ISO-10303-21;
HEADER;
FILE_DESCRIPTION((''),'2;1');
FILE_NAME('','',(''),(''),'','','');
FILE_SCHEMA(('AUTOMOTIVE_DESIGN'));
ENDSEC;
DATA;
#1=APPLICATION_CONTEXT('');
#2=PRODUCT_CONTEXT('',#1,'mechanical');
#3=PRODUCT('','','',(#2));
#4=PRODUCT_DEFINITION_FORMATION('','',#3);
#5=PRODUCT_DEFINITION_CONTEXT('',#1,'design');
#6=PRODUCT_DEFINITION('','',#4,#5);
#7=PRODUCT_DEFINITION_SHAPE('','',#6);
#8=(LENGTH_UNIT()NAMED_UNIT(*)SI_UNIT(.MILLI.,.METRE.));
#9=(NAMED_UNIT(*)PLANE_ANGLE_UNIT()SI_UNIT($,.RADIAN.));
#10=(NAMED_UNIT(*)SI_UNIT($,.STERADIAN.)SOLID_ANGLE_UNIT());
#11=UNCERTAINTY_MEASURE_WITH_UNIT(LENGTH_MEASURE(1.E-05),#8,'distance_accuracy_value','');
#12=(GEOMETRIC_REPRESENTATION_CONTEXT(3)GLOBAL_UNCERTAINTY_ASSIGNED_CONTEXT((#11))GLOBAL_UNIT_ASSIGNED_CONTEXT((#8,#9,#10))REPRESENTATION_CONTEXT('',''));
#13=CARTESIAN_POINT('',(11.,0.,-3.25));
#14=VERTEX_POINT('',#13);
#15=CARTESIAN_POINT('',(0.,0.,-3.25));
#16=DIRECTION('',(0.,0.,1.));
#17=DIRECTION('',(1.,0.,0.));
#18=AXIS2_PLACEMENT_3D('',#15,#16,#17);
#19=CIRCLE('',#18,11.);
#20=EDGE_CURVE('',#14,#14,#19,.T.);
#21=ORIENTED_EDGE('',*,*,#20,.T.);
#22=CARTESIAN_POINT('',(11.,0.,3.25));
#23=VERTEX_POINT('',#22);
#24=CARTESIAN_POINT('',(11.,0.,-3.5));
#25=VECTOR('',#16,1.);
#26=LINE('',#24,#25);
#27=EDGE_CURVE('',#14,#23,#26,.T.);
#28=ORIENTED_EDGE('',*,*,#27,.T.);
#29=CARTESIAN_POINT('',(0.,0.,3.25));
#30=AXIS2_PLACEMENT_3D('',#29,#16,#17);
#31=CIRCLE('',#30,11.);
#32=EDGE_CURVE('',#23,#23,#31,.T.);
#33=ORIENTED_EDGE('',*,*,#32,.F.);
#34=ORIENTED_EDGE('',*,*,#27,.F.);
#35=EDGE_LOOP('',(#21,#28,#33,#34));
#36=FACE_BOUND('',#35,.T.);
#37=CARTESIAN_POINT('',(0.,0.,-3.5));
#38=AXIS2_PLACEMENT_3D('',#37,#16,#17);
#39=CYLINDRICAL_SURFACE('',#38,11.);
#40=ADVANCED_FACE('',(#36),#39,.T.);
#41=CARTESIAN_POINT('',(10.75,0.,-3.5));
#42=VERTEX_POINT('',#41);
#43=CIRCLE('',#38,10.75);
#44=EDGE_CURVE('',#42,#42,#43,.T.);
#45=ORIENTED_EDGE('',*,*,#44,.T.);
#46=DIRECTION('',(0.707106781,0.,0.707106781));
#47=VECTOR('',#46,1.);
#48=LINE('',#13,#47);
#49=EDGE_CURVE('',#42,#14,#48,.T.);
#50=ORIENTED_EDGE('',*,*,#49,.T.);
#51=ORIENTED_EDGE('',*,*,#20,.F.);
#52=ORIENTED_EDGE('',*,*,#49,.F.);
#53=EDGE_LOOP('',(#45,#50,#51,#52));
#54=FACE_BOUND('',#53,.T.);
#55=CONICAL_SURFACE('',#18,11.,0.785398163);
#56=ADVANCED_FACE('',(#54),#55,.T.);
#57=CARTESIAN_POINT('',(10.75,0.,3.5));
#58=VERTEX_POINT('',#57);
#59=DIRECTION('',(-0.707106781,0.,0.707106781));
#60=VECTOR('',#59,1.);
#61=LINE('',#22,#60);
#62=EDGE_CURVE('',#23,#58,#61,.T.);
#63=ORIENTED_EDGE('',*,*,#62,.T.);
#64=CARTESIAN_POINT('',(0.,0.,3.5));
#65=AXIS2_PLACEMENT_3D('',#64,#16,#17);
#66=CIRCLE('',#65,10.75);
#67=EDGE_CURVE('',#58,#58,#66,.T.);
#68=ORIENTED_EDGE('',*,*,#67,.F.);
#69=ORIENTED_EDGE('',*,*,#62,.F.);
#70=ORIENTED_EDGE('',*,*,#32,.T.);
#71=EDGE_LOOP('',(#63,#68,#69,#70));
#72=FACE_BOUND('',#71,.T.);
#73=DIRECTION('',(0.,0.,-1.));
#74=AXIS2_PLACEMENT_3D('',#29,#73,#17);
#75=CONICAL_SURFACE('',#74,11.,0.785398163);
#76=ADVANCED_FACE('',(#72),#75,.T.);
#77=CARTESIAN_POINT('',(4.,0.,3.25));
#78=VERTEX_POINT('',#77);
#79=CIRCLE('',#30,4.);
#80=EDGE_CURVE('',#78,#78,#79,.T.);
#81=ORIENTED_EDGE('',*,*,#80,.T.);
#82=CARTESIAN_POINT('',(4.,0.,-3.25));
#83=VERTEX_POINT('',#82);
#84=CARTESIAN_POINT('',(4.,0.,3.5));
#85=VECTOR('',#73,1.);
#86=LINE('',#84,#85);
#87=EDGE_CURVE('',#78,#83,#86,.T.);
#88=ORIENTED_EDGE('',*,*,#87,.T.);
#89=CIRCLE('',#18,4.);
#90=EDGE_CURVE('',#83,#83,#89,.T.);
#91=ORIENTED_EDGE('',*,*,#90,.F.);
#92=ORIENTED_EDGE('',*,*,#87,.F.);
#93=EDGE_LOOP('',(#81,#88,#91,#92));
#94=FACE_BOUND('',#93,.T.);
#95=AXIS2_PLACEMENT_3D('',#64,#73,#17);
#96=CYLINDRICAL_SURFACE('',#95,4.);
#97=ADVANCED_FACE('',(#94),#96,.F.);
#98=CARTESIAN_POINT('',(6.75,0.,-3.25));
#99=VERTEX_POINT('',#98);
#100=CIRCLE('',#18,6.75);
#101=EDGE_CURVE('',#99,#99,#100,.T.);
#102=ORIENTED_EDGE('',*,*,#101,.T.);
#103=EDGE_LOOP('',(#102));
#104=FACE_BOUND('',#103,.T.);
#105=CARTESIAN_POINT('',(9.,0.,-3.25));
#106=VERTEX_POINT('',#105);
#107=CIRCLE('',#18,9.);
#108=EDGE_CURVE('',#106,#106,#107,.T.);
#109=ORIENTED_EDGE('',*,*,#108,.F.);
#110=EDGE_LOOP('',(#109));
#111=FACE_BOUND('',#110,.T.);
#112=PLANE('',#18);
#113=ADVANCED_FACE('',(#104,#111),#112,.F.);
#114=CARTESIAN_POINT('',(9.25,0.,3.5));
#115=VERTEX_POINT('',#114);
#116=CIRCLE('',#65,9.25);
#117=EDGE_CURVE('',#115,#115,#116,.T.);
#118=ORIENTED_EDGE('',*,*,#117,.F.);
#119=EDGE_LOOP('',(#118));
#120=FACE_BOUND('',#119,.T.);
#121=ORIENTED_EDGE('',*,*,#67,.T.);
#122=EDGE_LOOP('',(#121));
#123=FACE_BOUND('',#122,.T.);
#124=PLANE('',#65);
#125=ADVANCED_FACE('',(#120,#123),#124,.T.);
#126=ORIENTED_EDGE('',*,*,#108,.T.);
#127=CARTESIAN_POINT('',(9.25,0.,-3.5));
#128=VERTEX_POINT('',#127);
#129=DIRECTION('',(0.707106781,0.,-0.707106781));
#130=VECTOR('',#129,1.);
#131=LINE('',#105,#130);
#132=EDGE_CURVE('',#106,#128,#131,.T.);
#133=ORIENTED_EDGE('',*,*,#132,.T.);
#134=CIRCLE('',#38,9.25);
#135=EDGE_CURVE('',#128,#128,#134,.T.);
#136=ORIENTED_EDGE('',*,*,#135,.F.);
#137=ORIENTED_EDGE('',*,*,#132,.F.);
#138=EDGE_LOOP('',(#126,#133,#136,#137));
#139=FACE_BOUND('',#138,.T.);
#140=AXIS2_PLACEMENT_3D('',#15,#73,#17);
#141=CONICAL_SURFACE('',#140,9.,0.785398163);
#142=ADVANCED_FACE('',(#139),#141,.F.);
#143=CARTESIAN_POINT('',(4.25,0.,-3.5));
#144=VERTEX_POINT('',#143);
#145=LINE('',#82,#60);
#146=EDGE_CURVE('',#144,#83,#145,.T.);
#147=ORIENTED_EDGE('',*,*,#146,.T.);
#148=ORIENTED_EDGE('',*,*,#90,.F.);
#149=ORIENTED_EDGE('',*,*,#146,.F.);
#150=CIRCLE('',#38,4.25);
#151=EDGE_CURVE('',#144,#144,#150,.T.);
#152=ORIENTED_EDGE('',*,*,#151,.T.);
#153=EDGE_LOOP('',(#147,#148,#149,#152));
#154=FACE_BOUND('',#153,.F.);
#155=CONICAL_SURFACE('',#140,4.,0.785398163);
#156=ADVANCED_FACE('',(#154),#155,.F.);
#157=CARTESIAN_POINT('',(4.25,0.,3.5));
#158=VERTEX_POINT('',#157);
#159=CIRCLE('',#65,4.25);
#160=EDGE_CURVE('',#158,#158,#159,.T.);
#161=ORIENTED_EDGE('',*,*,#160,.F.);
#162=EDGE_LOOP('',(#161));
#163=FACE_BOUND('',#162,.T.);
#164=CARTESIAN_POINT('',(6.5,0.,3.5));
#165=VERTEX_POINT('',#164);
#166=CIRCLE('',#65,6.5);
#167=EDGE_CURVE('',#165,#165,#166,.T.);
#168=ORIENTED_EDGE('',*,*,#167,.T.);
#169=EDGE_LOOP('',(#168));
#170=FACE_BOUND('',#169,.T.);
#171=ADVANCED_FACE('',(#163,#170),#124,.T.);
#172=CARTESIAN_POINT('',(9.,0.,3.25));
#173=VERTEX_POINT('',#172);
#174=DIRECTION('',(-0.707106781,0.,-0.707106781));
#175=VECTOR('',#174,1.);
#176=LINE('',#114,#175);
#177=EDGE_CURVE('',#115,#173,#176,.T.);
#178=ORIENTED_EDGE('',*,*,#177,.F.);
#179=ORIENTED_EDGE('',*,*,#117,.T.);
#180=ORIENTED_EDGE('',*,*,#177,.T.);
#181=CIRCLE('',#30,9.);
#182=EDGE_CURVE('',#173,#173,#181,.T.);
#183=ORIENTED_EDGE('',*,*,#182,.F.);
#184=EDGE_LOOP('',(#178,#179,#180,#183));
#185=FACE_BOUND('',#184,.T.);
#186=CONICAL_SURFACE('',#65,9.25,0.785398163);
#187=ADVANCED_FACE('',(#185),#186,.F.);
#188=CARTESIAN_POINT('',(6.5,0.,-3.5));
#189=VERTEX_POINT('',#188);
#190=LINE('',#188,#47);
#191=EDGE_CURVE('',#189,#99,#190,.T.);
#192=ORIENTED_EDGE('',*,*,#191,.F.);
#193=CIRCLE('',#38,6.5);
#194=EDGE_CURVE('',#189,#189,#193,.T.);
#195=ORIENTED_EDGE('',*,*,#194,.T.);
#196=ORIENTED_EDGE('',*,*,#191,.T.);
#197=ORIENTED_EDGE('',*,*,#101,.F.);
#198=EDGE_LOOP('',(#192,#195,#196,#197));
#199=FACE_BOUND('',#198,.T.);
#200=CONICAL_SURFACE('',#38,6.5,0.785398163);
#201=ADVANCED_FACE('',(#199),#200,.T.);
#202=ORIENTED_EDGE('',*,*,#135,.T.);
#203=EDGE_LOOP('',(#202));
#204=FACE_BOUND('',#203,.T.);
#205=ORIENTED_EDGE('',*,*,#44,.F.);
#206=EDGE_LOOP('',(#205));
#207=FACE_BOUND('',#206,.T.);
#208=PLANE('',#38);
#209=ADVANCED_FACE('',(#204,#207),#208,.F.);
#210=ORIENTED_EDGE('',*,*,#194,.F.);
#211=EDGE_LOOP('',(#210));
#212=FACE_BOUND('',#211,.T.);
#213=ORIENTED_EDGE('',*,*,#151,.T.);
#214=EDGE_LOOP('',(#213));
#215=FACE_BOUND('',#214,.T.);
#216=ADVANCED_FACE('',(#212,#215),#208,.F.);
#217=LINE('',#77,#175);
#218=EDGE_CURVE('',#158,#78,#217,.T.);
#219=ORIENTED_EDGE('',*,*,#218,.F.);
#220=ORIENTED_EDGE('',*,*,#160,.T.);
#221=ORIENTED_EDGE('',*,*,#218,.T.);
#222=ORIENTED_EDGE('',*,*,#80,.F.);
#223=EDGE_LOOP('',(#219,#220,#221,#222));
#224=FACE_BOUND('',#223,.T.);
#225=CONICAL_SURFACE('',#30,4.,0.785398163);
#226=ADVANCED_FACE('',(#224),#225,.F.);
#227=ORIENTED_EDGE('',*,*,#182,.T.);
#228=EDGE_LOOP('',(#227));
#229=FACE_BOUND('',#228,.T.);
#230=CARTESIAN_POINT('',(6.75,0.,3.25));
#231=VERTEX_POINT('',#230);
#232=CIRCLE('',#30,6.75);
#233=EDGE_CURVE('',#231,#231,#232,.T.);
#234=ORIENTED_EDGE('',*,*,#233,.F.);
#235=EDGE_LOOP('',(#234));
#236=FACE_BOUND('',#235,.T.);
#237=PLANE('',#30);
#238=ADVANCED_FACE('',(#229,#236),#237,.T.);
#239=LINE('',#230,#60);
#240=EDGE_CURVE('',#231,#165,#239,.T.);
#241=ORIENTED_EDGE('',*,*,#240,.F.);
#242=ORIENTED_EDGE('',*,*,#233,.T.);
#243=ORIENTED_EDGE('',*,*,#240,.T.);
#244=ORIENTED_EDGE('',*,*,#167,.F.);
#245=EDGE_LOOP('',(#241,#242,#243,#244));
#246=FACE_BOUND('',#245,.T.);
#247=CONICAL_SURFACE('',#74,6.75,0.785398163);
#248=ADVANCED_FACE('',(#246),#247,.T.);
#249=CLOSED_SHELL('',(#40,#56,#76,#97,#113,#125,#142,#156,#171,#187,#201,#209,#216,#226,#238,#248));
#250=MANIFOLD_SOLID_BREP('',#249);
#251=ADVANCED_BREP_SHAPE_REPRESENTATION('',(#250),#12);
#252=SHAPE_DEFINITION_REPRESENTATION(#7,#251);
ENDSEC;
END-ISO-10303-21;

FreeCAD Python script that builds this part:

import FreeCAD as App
import Part
import Sketcher

V = App.Vector


def edges_at(feature, points):
    """Names of the edges that pass closest to the given points."""
    edges = feature.Shape.Edges
    near = lambda p: min(range(len(edges)), key=lambda i: edges[i].distToShape(Part.Vertex(*p))[0])
    return sorted({f"Edge{near(p) + 1}" for p in points})

doc = App.newDocument("Part")
params = doc.addObject("Spreadsheet::Sheet", "Params")
for row, (alias, value) in enumerate([
    ("sketch1_height", "7 mm"),
    ("sketch1_width", "2.5 mm"),
    ("sketch1_width2", "2.25 mm"),
    ("revolution_angle", "360 deg"),
    ("chamfer_size", "0.25 mm"),
], start=1):
    params.set(f"A{row}", alias)
    params.set(f"B{row}", "=" + value)
    params.setAlias(f"B{row}", alias)

body = doc.addObject("PartDesign::Body", "Body")

sketch1 = body.newObject("Sketcher::SketchObject", "Sketch")
sketch1.AttachmentSupport = (doc.getObject("XZ_Plane"), [""])
sketch1.MapMode = "FlatFace"
sketch1.addGeometry(Part.LineSegment(V(4, -3.5, 0), V(6.5, -3.5, 0)), False)
sketch1.addGeometry(Part.LineSegment(V(6.5, -3.5, 0), V(6.75, -3.25, 0)), False)
sketch1.addGeometry(Part.LineSegment(V(6.75, -3.25, 0), V(9, -3.25, 0)), False)
sketch1.addGeometry(Part.LineSegment(V(9, -3.25, 0), V(9.25, -3.5, 0)), False)
sketch1.addGeometry(Part.LineSegment(V(9.25, -3.5, 0), V(11, -3.5, 0)), False)
sketch1.addGeometry(Part.LineSegment(V(11, -3.5, 0), V(11, 3.5, 0)), False)
sketch1.addGeometry(Part.LineSegment(V(11, 3.5, 0), V(9.25, 3.5, 0)), False)
sketch1.addGeometry(Part.LineSegment(V(9.25, 3.5, 0), V(9, 3.25, 0)), False)
sketch1.addGeometry(Part.LineSegment(V(9, 3.25, 0), V(6.75, 3.25, 0)), False)
sketch1.addGeometry(Part.LineSegment(V(6.75, 3.25, 0), V(6.5, 3.5, 0)), False)
sketch1.addGeometry(Part.LineSegment(V(6.5, 3.5, 0), V(4, 3.5, 0)), False)
sketch1.addGeometry(Part.LineSegment(V(4, 3.5, 0), V(4, -3.5, 0)), False)
sketch1.addConstraint(Sketcher.Constraint("Coincident", 0, 2, 1, 1))
sketch1.addConstraint(Sketcher.Constraint("Coincident", 1, 2, 2, 1))
sketch1.addConstraint(Sketcher.Constraint("Coincident", 2, 2, 3, 1))
sketch1.addConstraint(Sketcher.Constraint("Coincident", 3, 2, 4, 1))
sketch1.addConstraint(Sketcher.Constraint("Coincident", 4, 2, 5, 1))
sketch1.addConstraint(Sketcher.Constraint("Coincident", 5, 2, 6, 1))
sketch1.addConstraint(Sketcher.Constraint("Coincident", 6, 2, 7, 1))
sketch1.addConstraint(Sketcher.Constraint("Coincident", 7, 2, 8, 1))
sketch1.addConstraint(Sketcher.Constraint("Coincident", 8, 2, 9, 1))
sketch1.addConstraint(Sketcher.Constraint("Coincident", 9, 2, 10, 1))
sketch1.addConstraint(Sketcher.Constraint("Coincident", 10, 2, 11, 1))
sketch1.addConstraint(Sketcher.Constraint("Coincident", 11, 2, 0, 1))
sketch1.addConstraint(Sketcher.Constraint("Horizontal", 0))
sketch1.addConstraint(Sketcher.Constraint("Horizontal", 2))
sketch1.addConstraint(Sketcher.Constraint("Horizontal", 4))
sketch1.addConstraint(Sketcher.Constraint("Vertical", 5))
sketch1.addConstraint(Sketcher.Constraint("Horizontal", 6))
sketch1.addConstraint(Sketcher.Constraint("Horizontal", 8))
sketch1.addConstraint(Sketcher.Constraint("Horizontal", 10))
sketch1.addConstraint(Sketcher.Constraint("Vertical", 11))
sketch1.addConstraint(Sketcher.Constraint("Symmetric", 3, 2, 6, 2, -1))
sketch1.addConstraint(Sketcher.Constraint("Symmetric", 2, 2, 7, 2, -1))
sketch1.addConstraint(Sketcher.Constraint("Symmetric", 0, 2, 9, 2, -1))
sketch1.addConstraint(Sketcher.Constraint("Perpendicular", 1, 3))
sketch1.addConstraint(Sketcher.Constraint("Perpendicular", 3, 7))
sketch1.addConstraint(Sketcher.Constraint("Perpendicular", 7, 9))
sketch1.addConstraint(Sketcher.Constraint("Horizontal", 0, 2, 3, 2))
sketch1.addConstraint(Sketcher.Constraint("DistanceY", 5, 1, 5, 2, 7.0))
sketch1.addConstraint(Sketcher.Constraint("DistanceX", 0, 1, 0, 2, 2.5))
sketch1.addConstraint(Sketcher.Constraint("DistanceX", -1, 1, 2, 2, 9.0))
sketch1.addConstraint(Sketcher.Constraint("DistanceX", -1, 1, 4, 2, 11.0))
sketch1.addConstraint(Sketcher.Constraint("DistanceX", -1, 1, 10, 2, 4.0))
sketch1.addConstraint(Sketcher.Constraint("DistanceX", 2, 1, 2, 2, 2.25))
sketch1.setExpression("Constraints[27]", "Params.sketch1_height")
sketch1.setExpression("Constraints[28]", "Params.sketch1_width")
sketch1.setExpression("Constraints[32]", "Params.sketch1_width2")
revolution = body.newObject("PartDesign::Revolution", "Revolution")
revolution.Profile = sketch1
revolution.ReferenceAxis = (sketch1, ["V_Axis"])
revolution.setExpression("Angle", "Params.revolution_angle")
doc.recompute()

chamfer = body.newObject("PartDesign::Chamfer", "Chamfer")
chamfer.Base = (revolution, edges_at(revolution, [
    (-11, 0, -3.5),
    (-4, 0, -3.5),
    (-11, 0, 3.5),
    (-4, 0, 3.5),
]))
chamfer.setExpression("Size", "Params.chamfer_size")

doc.recompute()
